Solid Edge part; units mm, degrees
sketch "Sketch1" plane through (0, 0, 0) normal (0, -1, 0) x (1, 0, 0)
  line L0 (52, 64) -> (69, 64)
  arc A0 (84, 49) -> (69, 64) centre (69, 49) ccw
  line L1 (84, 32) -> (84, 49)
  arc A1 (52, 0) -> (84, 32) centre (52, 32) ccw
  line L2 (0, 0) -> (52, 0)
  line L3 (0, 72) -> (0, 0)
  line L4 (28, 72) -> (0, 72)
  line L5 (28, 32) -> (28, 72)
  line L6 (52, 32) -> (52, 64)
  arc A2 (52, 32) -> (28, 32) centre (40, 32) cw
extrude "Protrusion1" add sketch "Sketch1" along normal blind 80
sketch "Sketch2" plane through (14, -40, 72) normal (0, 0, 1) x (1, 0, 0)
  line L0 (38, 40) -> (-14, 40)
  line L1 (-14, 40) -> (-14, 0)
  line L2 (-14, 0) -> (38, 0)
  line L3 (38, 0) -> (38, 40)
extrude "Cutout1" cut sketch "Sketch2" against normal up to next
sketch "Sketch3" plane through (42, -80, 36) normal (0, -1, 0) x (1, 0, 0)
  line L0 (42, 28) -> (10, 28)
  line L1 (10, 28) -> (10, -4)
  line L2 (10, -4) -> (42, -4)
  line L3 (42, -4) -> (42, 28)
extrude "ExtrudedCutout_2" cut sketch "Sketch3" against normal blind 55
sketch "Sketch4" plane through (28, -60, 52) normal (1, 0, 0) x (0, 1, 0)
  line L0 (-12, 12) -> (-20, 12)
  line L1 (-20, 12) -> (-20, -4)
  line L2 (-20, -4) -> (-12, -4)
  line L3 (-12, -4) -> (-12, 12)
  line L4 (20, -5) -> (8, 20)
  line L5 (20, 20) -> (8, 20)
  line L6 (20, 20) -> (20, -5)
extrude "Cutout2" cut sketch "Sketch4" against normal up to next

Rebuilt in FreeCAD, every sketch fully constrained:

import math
import FreeCAD as App
import Part
import Sketcher
Q = App.Units.Quantity


def add_polygon(sketch, points):
    """Adds a closed chain of lines whose ends are joined by coincident constraints."""
    first, n = sketch.GeometryCount, len(points)
    for a, b in zip(points, points[1:] + points[:1]):
        sketch.addGeometry(Part.LineSegment(App.Vector(*a, 0), App.Vector(*b, 0)), False)
    for i in range(n):
        sketch.addConstraint(Sketcher.Constraint("Coincident", first + i, 2, first + (i + 1) % n, 1))

doc = App.newDocument("Part")
body = doc.addObject("PartDesign::Body", "Body")

sketch1 = body.newObject("Sketcher::SketchObject", "Sketch")
sketch1.AttachmentSupport = (doc.getObject("XZ_Plane"), [""])
sketch1.MapMode = "FlatFace"
sketch1.addGeometry(Part.LineSegment(App.Vector(69, 64, 0), App.Vector(52, 64, 0)), False)
sketch1.addGeometry(Part.LineSegment(App.Vector(52, 64, 0), App.Vector(52, 32, 0)), False)
sketch1.addGeometry(Part.ArcOfCircle(Part.Circle(App.Vector(40, 32, 0), App.Vector(0, 0, 1), 12), math.radians(180), math.radians(360)), False)
sketch1.addGeometry(Part.LineSegment(App.Vector(28, 32, 0), App.Vector(28, 72, 0)), False)
sketch1.addGeometry(Part.LineSegment(App.Vector(28, 72, 0), App.Vector(0, 72, 0)), False)
sketch1.addGeometry(Part.LineSegment(App.Vector(0, 72, 0), App.Vector(0, 0, 0)), False)
sketch1.addGeometry(Part.LineSegment(App.Vector(0, 0, 0), App.Vector(52, 0, 0)), False)
sketch1.addGeometry(Part.ArcOfCircle(Part.Circle(App.Vector(52, 32, 0), App.Vector(0, 0, 1), 32), math.radians(-90), math.radians(0)), False)
sketch1.addGeometry(Part.LineSegment(App.Vector(84, 32, 0), App.Vector(84, 49, 0)), False)
sketch1.addGeometry(Part.ArcOfCircle(Part.Circle(App.Vector(69, 49, 0), App.Vector(0, 0, 1), 15), math.radians(0), math.radians(90)), False)
sketch1.addConstraint(Sketcher.Constraint("Coincident", 0, 2, 1, 1))
sketch1.addConstraint(Sketcher.Constraint("Tangent", 1, 2, 2, 2))
sketch1.addConstraint(Sketcher.Constraint("Tangent", 2, 1, 3, 1))
sketch1.addConstraint(Sketcher.Constraint("Coincident", 3, 2, 4, 1))
sketch1.addConstraint(Sketcher.Constraint("Coincident", 4, 2, 5, 1))
sketch1.addConstraint(Sketcher.Constraint("Coincident", 5, 2, 6, 1))
sketch1.addConstraint(Sketcher.Constraint("Tangent", 6, 2, 7, 1))
sketch1.addConstraint(Sketcher.Constraint("Tangent", 7, 2, 8, 1))
sketch1.addConstraint(Sketcher.Constraint("Tangent", 8, 2, 9, 1))
sketch1.addConstraint(Sketcher.Constraint("Tangent", 9, 2, 0, 1))
sketch1.addConstraint(Sketcher.Constraint("Horizontal", 0))
sketch1.addConstraint(Sketcher.Constraint("Vertical", 1))
sketch1.addConstraint(Sketcher.Constraint("Vertical", 3))
sketch1.addConstraint(Sketcher.Constraint("Horizontal", 4))
sketch1.addConstraint(Sketcher.Constraint("Vertical", 5))
sketch1.addConstraint(Sketcher.Constraint("Horizontal", 6))
sketch1.addConstraint(Sketcher.Constraint("Vertical", 8))
sketch1.addConstraint(Sketcher.Constraint("Coincident", 5, 2, -1, 1))
sketch1.addConstraint(Sketcher.Constraint("Coincident", 1, 2, 7, 3))
sketch1.addConstraint(Sketcher.Constraint("Equal", 0, 8))
sketch1.addConstraint(Sketcher.Constraint("Radius", 2, Q("12 mm")))
sketch1.addConstraint(Sketcher.Constraint("Radius", 7, Q("32 mm")))
sketch1.addConstraint(Sketcher.Constraint("Radius", 9, Q("15 mm")))
sketch1.addConstraint(Sketcher.Constraint("DistanceX", 4, 2, 4, 1, Q("28 mm")))
sketch1.addConstraint(Sketcher.Constraint("DistanceY", 3, 1, 3, 2, Q("40 mm")))
pad1 = body.newObject("PartDesign::Pad", "Pad")
pad1.Profile = sketch1
pad1.Length = 80

sketch2 = body.newObject("Sketcher::SketchObject", "Sketch001")
sketch2.AttachmentSupport = (doc.getObject("XY_Plane"), [""])
sketch2.MapMode = "FlatFace"
sketch2.AttachmentOffset = App.Placement(App.Vector(0, 0, 72), App.Rotation())
add_polygon(sketch2, [(52, -40), (52, 0), (0, 0), (0, -40)])
sketch2.addConstraint(Sketcher.Constraint("Vertical", 0))
sketch2.addConstraint(Sketcher.Constraint("Horizontal", 1))
sketch2.addConstraint(Sketcher.Constraint("Vertical", 2))
sketch2.addConstraint(Sketcher.Constraint("Horizontal", 3))
sketch2.addConstraint(Sketcher.Constraint("Coincident", 1, 2, -1, 1))
sketch2.addConstraint(Sketcher.Constraint("DistanceX", 1, 2, 1, 1, Q("52 mm")))
sketch2.addConstraint(Sketcher.Constraint("DistanceY", 0, 1, 0, 2, Q("40 mm")))
pocket1 = body.newObject("PartDesign::Pocket", "Pocket")
pocket1.Profile = sketch2
pocket1.Type = "UpToFirst"

sketch3 = body.newObject("Sketcher::SketchObject", "Sketch002")
sketch3.AttachmentSupport = (doc.getObject("XZ_Plane"), [""])
sketch3.MapMode = "FlatFace"
sketch3.AttachmentOffset = App.Placement(App.Vector(0, 0, 80), App.Rotation())
add_polygon(sketch3, [(84, 32), (84, 64), (52, 64), (52, 32)])
sketch3.addConstraint(Sketcher.Constraint("Vertical", 0))
sketch3.addConstraint(Sketcher.Constraint("Horizontal", 1))
sketch3.addConstraint(Sketcher.Constraint("Vertical", 2))
sketch3.addConstraint(Sketcher.Constraint("Horizontal", 3))
sketch3.addConstraint(Sketcher.Constraint("Equal", 3, 0))
sketch3.addConstraint(Sketcher.Constraint("DistanceX", 1, 2, 1, 1, Q("32 mm")))
sketch3.addConstraint(Sketcher.Constraint("DistanceX", -1, 1, 0, 2, Q("84 mm")))
sketch3.addConstraint(Sketcher.Constraint("DistanceY", -1, 1, 0, 2, Q("64 mm")))
pocket2 = body.newObject("PartDesign::Pocket", "Pocket001")
pocket2.Profile = sketch3
pocket2.Length = 55

sketch4 = body.newObject("Sketcher::SketchObject", "Sketch003")
sketch4.AttachmentSupport = (doc.getObject("YZ_Plane"), [""])
sketch4.MapMode = "FlatFace"
sketch4.AttachmentOffset = App.Placement(App.Vector(0, 0, 28), App.Rotation())
add_polygon(sketch4, [(-72, 48), (-72, 64), (-80, 64), (-80, 48)])
add_polygon(sketch4, [(-52, 72), (-40, 47), (-40, 72)])
sketch4.addConstraint(Sketcher.Constraint("Vertical", 0))
sketch4.addConstraint(Sketcher.Constraint("Horizontal", 1))
sketch4.addConstraint(Sketcher.Constraint("Vertical", 2))
sketch4.addConstraint(Sketcher.Constraint("Horizontal", 3))
sketch4.addConstraint(Sketcher.Constraint("Vertical", 5))
sketch4.addConstraint(Sketcher.Constraint("Horizontal", 6))
sketch4.addConstraint(Sketcher.Constraint("DistanceX", 1, 2, 1, 1, Q("8 mm")))
sketch4.addConstraint(Sketcher.Constraint("DistanceX", 6, 2, 6, 1, Q("12 mm")))
sketch4.addConstraint(Sketcher.Constraint("DistanceY", 0, 1, 0, 2, Q("16 mm")))
sketch4.addConstraint(Sketcher.Constraint("DistanceY", 5, 1, 5, 2, Q("25 mm")))
sketch4.addConstraint(Sketcher.Constraint("DistanceX", 0, 2, -1, 1, Q("72 mm")))
sketch4.addConstraint(Sketcher.Constraint("DistanceY", -1, 1, 0, 2, Q("64 mm")))
sketch4.addConstraint(Sketcher.Constraint("DistanceX", 4, 2, -1, 1, Q("40 mm")))
sketch4.addConstraint(Sketcher.Constraint("DistanceY", -1, 1, 4, 2, Q("47 mm")))
pocket3 = body.newObject("PartDesign::Pocket", "Pocket002")
pocket3.Profile = sketch4
pocket3.Type = "UpToFirst"

doc.recompute()
